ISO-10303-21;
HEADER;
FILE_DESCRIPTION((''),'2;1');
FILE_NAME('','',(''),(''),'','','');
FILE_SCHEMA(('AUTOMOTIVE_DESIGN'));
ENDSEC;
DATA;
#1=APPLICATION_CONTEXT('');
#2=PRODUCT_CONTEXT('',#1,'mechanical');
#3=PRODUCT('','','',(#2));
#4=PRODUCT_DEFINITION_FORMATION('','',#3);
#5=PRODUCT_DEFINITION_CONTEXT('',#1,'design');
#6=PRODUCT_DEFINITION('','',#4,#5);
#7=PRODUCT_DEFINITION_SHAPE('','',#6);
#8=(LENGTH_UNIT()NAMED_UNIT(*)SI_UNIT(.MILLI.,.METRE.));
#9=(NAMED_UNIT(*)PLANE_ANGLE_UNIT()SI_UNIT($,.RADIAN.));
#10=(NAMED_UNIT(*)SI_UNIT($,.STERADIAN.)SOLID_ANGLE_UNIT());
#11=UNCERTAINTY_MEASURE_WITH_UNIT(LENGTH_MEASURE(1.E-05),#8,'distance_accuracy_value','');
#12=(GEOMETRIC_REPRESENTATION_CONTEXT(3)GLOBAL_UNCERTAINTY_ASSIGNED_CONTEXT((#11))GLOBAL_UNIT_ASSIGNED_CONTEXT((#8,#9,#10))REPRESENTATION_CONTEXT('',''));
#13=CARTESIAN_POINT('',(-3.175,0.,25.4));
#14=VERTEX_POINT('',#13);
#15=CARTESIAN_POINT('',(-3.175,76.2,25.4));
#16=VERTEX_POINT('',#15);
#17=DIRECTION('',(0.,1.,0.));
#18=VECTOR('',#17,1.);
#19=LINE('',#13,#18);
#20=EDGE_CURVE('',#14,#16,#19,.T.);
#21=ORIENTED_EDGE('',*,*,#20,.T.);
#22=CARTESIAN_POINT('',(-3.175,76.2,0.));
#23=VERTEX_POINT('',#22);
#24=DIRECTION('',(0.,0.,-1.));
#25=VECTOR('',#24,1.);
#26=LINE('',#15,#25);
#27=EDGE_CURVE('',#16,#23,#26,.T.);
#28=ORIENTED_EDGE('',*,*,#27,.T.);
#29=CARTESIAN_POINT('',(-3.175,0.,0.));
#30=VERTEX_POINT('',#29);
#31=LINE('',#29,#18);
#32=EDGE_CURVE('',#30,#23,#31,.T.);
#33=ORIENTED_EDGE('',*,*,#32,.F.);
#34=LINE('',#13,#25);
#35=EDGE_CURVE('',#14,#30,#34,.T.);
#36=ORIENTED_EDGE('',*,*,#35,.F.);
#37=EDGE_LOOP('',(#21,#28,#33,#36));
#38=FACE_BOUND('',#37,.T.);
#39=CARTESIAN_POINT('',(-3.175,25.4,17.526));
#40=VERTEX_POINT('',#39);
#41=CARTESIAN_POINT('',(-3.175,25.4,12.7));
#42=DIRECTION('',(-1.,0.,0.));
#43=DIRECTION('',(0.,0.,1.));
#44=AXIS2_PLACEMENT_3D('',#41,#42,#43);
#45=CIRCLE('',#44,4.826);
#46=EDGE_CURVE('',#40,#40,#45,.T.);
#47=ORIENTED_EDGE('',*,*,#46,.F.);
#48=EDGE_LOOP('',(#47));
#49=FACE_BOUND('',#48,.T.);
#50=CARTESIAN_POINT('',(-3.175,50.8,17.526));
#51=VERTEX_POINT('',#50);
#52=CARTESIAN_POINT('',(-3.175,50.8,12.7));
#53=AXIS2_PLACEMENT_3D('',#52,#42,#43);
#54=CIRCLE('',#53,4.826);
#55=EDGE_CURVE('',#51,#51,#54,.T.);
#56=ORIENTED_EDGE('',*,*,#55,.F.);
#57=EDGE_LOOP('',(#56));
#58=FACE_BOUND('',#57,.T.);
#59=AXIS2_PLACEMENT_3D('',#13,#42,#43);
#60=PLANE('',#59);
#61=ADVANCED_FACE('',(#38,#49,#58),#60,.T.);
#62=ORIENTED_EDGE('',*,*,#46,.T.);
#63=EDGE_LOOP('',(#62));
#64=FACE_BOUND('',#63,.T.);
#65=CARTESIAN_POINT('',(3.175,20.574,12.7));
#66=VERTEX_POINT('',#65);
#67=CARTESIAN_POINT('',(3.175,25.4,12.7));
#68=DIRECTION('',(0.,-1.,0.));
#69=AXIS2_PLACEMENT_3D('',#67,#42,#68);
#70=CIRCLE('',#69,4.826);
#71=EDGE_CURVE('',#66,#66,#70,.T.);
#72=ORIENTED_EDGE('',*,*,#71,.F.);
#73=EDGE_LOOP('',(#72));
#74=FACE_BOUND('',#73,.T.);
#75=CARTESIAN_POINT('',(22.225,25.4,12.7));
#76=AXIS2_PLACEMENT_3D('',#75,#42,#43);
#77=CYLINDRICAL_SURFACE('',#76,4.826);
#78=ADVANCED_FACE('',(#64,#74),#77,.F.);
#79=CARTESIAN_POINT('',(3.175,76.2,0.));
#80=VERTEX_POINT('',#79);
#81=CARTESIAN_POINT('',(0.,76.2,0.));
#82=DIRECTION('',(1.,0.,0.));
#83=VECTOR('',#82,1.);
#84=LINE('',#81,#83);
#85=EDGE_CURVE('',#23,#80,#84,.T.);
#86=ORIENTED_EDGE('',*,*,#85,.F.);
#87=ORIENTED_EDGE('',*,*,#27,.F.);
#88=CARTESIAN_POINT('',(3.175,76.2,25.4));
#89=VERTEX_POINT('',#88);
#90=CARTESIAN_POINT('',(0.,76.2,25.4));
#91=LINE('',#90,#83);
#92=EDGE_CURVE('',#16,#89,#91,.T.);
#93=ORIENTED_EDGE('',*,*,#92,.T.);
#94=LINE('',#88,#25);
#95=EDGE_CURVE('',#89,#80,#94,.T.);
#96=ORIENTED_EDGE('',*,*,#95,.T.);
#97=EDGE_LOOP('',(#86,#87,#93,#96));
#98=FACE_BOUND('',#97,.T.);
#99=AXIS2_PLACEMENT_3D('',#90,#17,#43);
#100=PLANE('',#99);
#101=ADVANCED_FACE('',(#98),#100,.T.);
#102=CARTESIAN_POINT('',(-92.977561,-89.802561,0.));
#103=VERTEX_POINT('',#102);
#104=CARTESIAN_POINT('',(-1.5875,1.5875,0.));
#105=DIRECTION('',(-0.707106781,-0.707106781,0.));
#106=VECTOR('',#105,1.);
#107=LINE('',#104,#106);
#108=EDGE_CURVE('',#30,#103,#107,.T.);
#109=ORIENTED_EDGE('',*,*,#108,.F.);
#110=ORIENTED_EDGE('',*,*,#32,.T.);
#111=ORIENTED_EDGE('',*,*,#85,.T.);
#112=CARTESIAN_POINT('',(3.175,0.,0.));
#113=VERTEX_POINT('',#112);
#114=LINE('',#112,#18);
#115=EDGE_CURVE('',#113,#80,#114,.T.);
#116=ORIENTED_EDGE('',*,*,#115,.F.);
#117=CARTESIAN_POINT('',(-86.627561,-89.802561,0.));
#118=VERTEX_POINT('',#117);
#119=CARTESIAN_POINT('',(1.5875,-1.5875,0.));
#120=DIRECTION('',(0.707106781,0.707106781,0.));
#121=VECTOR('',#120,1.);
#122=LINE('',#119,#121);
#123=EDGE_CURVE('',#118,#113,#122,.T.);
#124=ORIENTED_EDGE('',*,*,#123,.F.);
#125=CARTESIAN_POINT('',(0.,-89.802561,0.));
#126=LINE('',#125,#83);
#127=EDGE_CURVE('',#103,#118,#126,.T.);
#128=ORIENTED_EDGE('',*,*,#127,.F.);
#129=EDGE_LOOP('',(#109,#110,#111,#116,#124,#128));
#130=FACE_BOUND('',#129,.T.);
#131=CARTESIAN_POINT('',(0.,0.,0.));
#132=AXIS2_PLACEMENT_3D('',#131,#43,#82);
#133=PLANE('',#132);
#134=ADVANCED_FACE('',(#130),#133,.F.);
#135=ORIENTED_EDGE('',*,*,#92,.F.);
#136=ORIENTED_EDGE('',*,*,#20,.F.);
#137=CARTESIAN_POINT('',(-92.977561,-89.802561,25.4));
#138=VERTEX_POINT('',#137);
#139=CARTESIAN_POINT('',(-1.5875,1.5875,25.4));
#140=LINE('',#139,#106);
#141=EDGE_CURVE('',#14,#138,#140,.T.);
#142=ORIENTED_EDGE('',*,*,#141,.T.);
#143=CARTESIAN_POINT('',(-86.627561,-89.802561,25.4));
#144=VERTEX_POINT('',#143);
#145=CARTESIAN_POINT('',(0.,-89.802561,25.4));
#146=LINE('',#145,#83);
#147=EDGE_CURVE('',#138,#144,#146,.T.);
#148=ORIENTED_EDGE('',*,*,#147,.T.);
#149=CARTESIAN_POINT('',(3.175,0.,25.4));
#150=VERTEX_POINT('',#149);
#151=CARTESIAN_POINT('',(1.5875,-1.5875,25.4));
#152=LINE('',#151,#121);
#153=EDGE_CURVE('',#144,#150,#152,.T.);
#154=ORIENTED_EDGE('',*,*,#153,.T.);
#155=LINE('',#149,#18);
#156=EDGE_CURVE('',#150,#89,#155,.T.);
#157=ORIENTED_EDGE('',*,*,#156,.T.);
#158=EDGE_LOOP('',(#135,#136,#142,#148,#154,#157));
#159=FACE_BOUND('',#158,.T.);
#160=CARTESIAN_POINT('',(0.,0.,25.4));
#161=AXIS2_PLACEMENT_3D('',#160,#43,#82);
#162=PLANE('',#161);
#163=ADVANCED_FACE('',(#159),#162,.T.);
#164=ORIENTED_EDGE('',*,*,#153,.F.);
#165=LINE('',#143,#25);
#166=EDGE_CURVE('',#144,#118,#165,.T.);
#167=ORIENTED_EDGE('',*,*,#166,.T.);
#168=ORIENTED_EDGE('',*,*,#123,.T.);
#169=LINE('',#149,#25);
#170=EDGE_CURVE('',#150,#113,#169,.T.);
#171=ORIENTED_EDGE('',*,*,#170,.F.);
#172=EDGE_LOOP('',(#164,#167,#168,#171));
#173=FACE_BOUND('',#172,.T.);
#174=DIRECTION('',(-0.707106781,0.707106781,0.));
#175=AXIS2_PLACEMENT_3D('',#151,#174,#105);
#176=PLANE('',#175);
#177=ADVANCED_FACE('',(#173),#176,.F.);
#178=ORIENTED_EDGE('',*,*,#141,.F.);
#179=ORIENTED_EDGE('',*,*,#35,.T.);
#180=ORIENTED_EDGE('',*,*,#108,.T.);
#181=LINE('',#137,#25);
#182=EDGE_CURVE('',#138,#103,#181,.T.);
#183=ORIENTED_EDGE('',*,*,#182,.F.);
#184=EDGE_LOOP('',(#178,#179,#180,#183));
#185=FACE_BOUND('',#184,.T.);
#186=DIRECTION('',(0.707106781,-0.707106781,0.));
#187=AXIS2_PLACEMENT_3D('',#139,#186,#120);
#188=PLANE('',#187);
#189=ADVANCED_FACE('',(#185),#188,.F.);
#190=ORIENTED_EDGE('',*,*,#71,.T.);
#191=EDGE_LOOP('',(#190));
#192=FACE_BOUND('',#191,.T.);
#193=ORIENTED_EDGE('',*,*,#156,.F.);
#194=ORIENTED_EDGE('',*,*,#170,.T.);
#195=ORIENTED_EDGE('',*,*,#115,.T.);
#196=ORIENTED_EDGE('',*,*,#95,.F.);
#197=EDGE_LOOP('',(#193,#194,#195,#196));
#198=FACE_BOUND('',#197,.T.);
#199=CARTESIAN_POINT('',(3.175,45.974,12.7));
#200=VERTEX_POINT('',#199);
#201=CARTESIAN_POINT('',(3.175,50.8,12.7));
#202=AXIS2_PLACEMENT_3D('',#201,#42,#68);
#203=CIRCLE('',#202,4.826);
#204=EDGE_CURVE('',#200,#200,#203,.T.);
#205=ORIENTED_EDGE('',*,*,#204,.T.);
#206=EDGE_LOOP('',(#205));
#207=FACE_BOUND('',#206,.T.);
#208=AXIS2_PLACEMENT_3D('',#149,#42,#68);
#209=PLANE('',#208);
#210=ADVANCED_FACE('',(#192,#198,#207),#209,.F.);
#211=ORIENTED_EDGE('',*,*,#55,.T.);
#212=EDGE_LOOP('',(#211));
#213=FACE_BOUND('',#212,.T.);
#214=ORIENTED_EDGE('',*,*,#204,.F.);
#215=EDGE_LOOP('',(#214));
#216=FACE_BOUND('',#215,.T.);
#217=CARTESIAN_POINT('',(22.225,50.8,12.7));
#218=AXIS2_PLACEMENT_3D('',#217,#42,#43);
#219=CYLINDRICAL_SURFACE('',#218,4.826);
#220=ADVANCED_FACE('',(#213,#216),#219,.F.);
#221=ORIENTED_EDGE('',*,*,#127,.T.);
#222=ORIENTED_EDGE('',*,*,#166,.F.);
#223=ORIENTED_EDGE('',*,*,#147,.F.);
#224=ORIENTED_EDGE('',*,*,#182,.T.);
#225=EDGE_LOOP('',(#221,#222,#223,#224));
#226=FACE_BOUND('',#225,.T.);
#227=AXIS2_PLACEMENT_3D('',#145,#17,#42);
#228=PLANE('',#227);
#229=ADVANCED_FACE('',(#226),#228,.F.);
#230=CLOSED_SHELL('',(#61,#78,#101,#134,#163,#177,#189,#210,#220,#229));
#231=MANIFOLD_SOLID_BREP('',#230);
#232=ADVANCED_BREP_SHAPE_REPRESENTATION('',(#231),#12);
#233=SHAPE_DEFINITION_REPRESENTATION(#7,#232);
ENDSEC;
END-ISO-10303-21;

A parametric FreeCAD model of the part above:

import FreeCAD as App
import Part
import Sketcher
Q = App.Units.Quantity


def add_polygon(sketch, points):
    """Adds a closed chain of lines whose ends are joined by coincident constraints."""
    first, n = sketch.GeometryCount, len(points)
    for a, b in zip(points, points[1:] + points[:1]):
        sketch.addGeometry(Part.LineSegment(App.Vector(*a, 0), App.Vector(*b, 0)), False)
    for i in range(n):
        sketch.addConstraint(Sketcher.Constraint("Coincident", first + i, 2, first + (i + 1) % n, 1))

doc = App.newDocument("Part")
body = doc.addObject("PartDesign::Body", "Body")

sketch1 = body.newObject("Sketcher::SketchObject", "Sketch")
sketch1.AttachmentSupport = (doc.getObject("XY_Plane"), [""])
sketch1.MapMode = "FlatFace"
add_polygon(sketch1, [(-3, 76), (-3, 0), (-93, -90), (-87, -90), (3, 0), (3, 76)])
sketch1.addConstraint([
    Sketcher.Constraint("Vertical", 0),
    Sketcher.Constraint("Horizontal", 2),
    Sketcher.Constraint("Vertical", 4),
    Sketcher.Constraint("Horizontal", 5),
    Sketcher.Constraint("Symmetric", 0, 2, 3, 2, -1, 1),
    Sketcher.Constraint("PointOnObject", 0, 2, -1),
    Sketcher.Constraint("Parallel", 1, 3),
    Sketcher.Constraint("DistanceY", 0, 2, 0, 1, Q("3 in")),
    Sketcher.Constraint("Distance", 1, Q("5 in")),
    Sketcher.Constraint("Angle", 1, Q("-135 deg")),
    Sketcher.Constraint("DistanceX", 2, 1, 2, 2, Q("0.25 in")),
])
pad1 = body.newObject("PartDesign::Pad", "Pad")
pad1.Profile = sketch1
pad1.Length = Q("1 in")

sketch2 = body.newObject("Sketcher::SketchObject", "Sketch001")
sketch2.AttachmentSupport = (doc.getObject("YZ_Plane"), [""])
sketch2.MapMode = "FlatFace"
sketch2.AttachmentOffset = App.Placement(App.Vector(0, 0, -0.125 * 25.4), App.Rotation())
sketch2.addGeometry([
    Part.Circle(App.Vector(50.8, 12.7, 0), App.Vector(0, 0, 1), 4.8),
    Part.Circle(App.Vector(25.4, 12.7, 0), App.Vector(0, 0, 1), 4.8),
], False)
sketch2.addConstraint([
    Sketcher.Constraint("Equal", 0, 1),
    Sketcher.Constraint("Horizontal", 0, 3, 1, 3),
    Sketcher.Constraint("Diameter", 0, Q("0.38 in")),
    Sketcher.Constraint("DistanceX", -1, 1, 0, 3, Q("2 in")),
    Sketcher.Constraint("DistanceX", -1, 1, 1, 3, Q("1 in")),
    Sketcher.Constraint("DistanceY", -1, 1, 0, 3, Q("0.5 in")),
])
pocket1 = body.newObject("PartDesign::Pocket", "Pocket")
pocket1.Profile = sketch2
pocket1.Length = Q("1 in")
pocket1.Reversed = True

doc.recompute()
